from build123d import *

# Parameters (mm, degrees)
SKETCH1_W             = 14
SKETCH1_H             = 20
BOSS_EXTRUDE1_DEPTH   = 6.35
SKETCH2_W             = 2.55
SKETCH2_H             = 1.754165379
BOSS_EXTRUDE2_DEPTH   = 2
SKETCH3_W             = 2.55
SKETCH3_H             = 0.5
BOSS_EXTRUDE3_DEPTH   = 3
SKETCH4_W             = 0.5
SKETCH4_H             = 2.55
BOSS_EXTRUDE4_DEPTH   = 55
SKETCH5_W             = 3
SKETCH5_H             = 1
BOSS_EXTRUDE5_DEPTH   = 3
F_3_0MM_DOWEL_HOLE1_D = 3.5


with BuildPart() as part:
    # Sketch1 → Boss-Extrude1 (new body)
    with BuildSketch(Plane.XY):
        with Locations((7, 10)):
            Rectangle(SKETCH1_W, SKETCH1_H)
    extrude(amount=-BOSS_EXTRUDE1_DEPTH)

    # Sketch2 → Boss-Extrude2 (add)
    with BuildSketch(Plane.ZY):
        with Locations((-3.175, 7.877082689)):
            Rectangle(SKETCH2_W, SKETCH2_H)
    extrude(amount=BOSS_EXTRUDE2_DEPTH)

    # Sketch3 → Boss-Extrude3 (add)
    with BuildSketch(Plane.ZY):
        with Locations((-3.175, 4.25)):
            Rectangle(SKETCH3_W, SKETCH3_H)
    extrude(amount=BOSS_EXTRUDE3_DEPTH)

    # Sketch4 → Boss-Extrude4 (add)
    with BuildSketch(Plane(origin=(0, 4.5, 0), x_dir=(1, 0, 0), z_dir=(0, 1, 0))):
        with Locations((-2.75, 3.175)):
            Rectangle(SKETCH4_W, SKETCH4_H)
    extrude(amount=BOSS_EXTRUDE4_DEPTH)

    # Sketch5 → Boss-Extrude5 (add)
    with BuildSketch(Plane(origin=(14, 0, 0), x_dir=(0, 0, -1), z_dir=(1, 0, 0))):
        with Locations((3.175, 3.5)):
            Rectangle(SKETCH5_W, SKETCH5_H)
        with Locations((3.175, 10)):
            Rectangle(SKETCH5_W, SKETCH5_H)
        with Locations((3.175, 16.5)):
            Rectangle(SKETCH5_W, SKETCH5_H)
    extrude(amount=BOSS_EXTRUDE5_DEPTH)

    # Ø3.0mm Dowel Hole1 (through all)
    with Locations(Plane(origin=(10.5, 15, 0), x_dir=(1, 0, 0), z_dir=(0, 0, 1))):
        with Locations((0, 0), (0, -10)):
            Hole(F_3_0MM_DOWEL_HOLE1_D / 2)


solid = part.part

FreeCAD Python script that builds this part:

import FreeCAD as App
import Part
import Sketcher
Q = App.Units.Quantity


def add_polygon(sketch, points):
    """Adds a closed chain of lines whose ends are joined by coincident constraints."""
    first, n = sketch.GeometryCount, len(points)
    for a, b in zip(points, points[1:] + points[:1]):
        sketch.addGeometry(Part.LineSegment(App.Vector(*a, 0), App.Vector(*b, 0)), False)
    for i in range(n):
        sketch.addConstraint(Sketcher.Constraint("Coincident", first + i, 2, first + (i + 1) % n, 1))

doc = App.newDocument("Part")
body = doc.addObject("PartDesign::Body", "Body")

# Sketch on XY plane
sketch1 = doc.addObject("Sketcher::SketchObject", "Sketch")
body.addObject(sketch1)
sketch1.AttachmentSupport = (doc.XY_Plane, [""])
sketch1.MapMode = "FlatFace"
add_polygon(sketch1, [(0, 20), (0, 0), (14, 0), (14, 20)])  # lines 0-3
sketch1.addConstraint(Sketcher.Constraint("Vertical", 0))
sketch1.addConstraint(Sketcher.Constraint("Horizontal", 1))
sketch1.addConstraint(Sketcher.Constraint("Vertical", 2))
sketch1.addConstraint(Sketcher.Constraint("Horizontal", 3))
sketch1.addConstraint(Sketcher.Constraint("Coincident", 0, 2, -1, 1))
sketch1.addConstraint(Sketcher.Constraint("DistanceX", 1, 1, 1, 2, Q("14 mm")))
sketch1.addConstraint(Sketcher.Constraint("DistanceY", 0, 2, 0, 1, Q("20 mm")))
pad1 = doc.addObject("PartDesign::Pad", "Pad")
body.addObject(pad1)
pad1.Profile = sketch1
pad1.Length = 6.35
pad1.Reversed = True

# Sketch on YZ plane
sketch2 = doc.addObject("Sketcher::SketchObject", "Sketch001")
body.addObject(sketch2)
sketch2.AttachmentSupport = (doc.YZ_Plane, [""])
sketch2.MapMode = "FlatFace"
add_polygon(sketch2, [(8.8, -4.5), (7, -4.5), (7, -1.9), (8.8, -1.9)])  # lines 0-3
sketch2.addConstraint(Sketcher.Constraint("Horizontal", 0))
sketch2.addConstraint(Sketcher.Constraint("Vertical", 1))
sketch2.addConstraint(Sketcher.Constraint("Horizontal", 2))
sketch2.addConstraint(Sketcher.Constraint("Vertical", 3))
sketch2.addConstraint(Sketcher.Constraint("DistanceX", -1, 1, 0, 2, Q("7 mm")))
sketch2.addConstraint(Sketcher.Constraint("DistanceY", 1, 1, 1, 2, Q("2.55 mm")))
sketch2.addConstraint(Sketcher.Constraint("DistanceY", 1, 2, -1, 1, Q("1.9 mm")))
sketch2.addConstraint(Sketcher.Constraint("DistanceX", 0, 2, 0, 1, Q("1.754165 mm")))
pad2 = doc.addObject("PartDesign::Pad", "Pad001")
body.addObject(pad2)
pad2.Profile = sketch2
pad2.Length = 2
pad2.Reversed = True

# Sketch on YZ plane
sketch3 = doc.addObject("Sketcher::SketchObject", "Sketch002")
body.addObject(sketch3)
sketch3.AttachmentSupport = (doc.YZ_Plane, [""])
sketch3.MapMode = "FlatFace"
add_polygon(sketch3, [(4.5, -4.5), (4, -4.5), (4, -1.9), (4.5, -1.9)])  # lines 0-3
sketch3.addConstraint(Sketcher.Constraint("Horizontal", 0))
sketch3.addConstraint(Sketcher.Constraint("Vertical", 1))
sketch3.addConstraint(Sketcher.Constraint("Horizontal", 2))
sketch3.addConstraint(Sketcher.Constraint("Vertical", 3))
sketch3.addConstraint(Sketcher.Constraint("DistanceX", 0, 2, 0, 1, Q("0.5 mm")))
sketch3.addConstraint(Sketcher.Constraint("DistanceX", -1, 1, 0, 2, Q("4 mm")))
sketch3.addConstraint(Sketcher.Constraint("DistanceY", 1, 1, 1, 2, Q("2.55 mm")))
sketch3.addConstraint(Sketcher.Constraint("DistanceY", 1, 2, -1, 1, Q("1.9 mm")))
pad3 = doc.addObject("PartDesign::Pad", "Pad002")
body.addObject(pad3)
pad3.Profile = sketch3
pad3.Length = 3
pad3.Reversed = True

# Sketch on XZ plane
sketch4 = doc.addObject("Sketcher::SketchObject", "Sketch003")
body.addObject(sketch4)
sketch4.AttachmentSupport = (doc.XZ_Plane, [""])
sketch4.MapMode = "FlatFace"
sketch4.AttachmentOffset = App.Placement(App.Vector(0, 0, -4.5), App.Rotation())
add_polygon(sketch4, [(-3, -4.5), (-3, -1.9), (-2.5, -1.9), (-2.5, -4.5)])  # lines 0-3
sketch4.addConstraint(Sketcher.Constraint("Vertical", 0))
sketch4.addConstraint(Sketcher.Constraint("Horizontal", 1))
sketch4.addConstraint(Sketcher.Constraint("Vertical", 2))
sketch4.addConstraint(Sketcher.Constraint("Horizontal", 3))
sketch4.addConstraint(Sketcher.Constraint("DistanceX", 1, 1, 1, 2, Q("0.5 mm")))
sketch4.addConstraint(Sketcher.Constraint("DistanceX", 0, 2, -1, 1, Q("3 mm")))
sketch4.addConstraint(Sketcher.Constraint("DistanceY", 0, 1, 0, 2, Q("2.55 mm")))
sketch4.addConstraint(Sketcher.Constraint("DistanceY", 0, 2, -1, 1, Q("1.9 mm")))
pad4 = doc.addObject("PartDesign::Pad", "Pad003")
body.addObject(pad4)
pad4.Profile = sketch4
pad4.Length = 55
pad4.Reversed = True

# Sketch on YZ plane
sketch5 = doc.addObject("Sketcher::SketchObject", "Sketch004")
body.addObject(sketch5)
sketch5.AttachmentSupport = (doc.YZ_Plane, [""])
sketch5.MapMode = "FlatFace"
sketch5.AttachmentOffset = App.Placement(App.Vector(0, 0, 14), App.Rotation())
add_polygon(sketch5, [(4, -1.7), (3, -1.7), (3, -4.7), (4, -4.7)])  # lines 0-3
add_polygon(sketch5, [(10.5, -1.7), (9.5, -1.7), (9.5, -4.7), (10.5, -4.7)])  # lines 4-7
add_polygon(sketch5, [(17, -1.7), (16, -1.7), (16, -4.7), (17, -4.7)])  # lines 8-11
sketch5.addConstraint(Sketcher.Constraint("Horizontal", 0))
sketch5.addConstraint(Sketcher.Constraint("Vertical", 1))
sketch5.addConstraint(Sketcher.Constraint("Horizontal", 2))
sketch5.addConstraint(Sketcher.Constraint("Vertical", 3))
sketch5.addConstraint(Sketcher.Constraint("Horizontal", 4))
sketch5.addConstraint(Sketcher.Constraint("Vertical", 5))
sketch5.addConstraint(Sketcher.Constraint("Horizontal", 6))
sketch5.addConstraint(Sketcher.Constraint("Vertical", 7))
sketch5.addConstraint(Sketcher.Constraint("Horizontal", 8))
sketch5.addConstraint(Sketcher.Constraint("Vertical", 9))
sketch5.addConstraint(Sketcher.Constraint("Horizontal", 10))
sketch5.addConstraint(Sketcher.Constraint("Vertical", 11))
sketch5.addConstraint(Sketcher.Constraint("Horizontal", 3, 2, 4, 2))
sketch5.addConstraint(Sketcher.Constraint("Horizontal", 2, 2, 5, 2))
sketch5.addConstraint(Sketcher.Constraint("Horizontal", 7, 2, 8, 2))
sketch5.addConstraint(Sketcher.Constraint("Horizontal", 6, 2, 9, 2))
sketch5.addConstraint(Sketcher.Constraint("Equal", 2, 4))
sketch5.addConstraint(Sketcher.Constraint("Equal", 6, 8))
sketch5.addConstraint(Sketcher.Constraint("DistanceX", 0, 2, 0, 1, Q("1 mm")))
sketch5.addConstraint(Sketcher.Constraint("DistanceY", 1, 2, 1, 1, Q("3 mm")))
sketch5.addConstraint(Sketcher.Constraint("DistanceX", -1, 1, 0, 2, Q("3 mm")))
sketch5.addConstraint(Sketcher.Constraint("DistanceX", -1, 1, 8, 2, Q("16 mm")))
sketch5.addConstraint(Sketcher.Constraint("DistanceX", -1, 1, 4, 2, Q("9.5 mm")))
sketch5.addConstraint(Sketcher.Constraint("DistanceY", 0, 2, -1, 1, Q("1.675 mm")))
pad5 = doc.addObject("PartDesign::Pad", "Pad004")
body.addObject(pad5)
pad5.Profile = sketch5
pad5.Length = 3

# Sketch on XY plane
sketch6 = doc.addObject("Sketcher::SketchObject", "Sketch005")
body.addObject(sketch6)
sketch6.AttachmentSupport = (doc.XY_Plane, [""])
sketch6.MapMode = "FlatFace"
sketch6.addGeometry(Part.Circle(App.Vector(10.5, 15, 0), App.Vector(0, 0, 1), 1.8), False)
sketch6.addGeometry(Part.Circle(App.Vector(10.5, 5, 0), App.Vector(0, 0, 1), 1.8), False)
sketch6.addConstraint(Sketcher.Constraint("Equal", 0, 1))
sketch6.addConstraint(Sketcher.Constraint("Vertical", 0, 3, 1, 3))
sketch6.addConstraint(Sketcher.Constraint("Diameter", 0, Q("3.5 mm")))
sketch6.addConstraint(Sketcher.Constraint("DistanceY", -1, 1, 0, 3, Q("15 mm")))
sketch6.addConstraint(Sketcher.Constraint("DistanceY", -1, 1, 1, 3, Q("5 mm")))
sketch6.addConstraint(Sketcher.Constraint("DistanceX", -1, 1, 0, 3, Q("10.5 mm")))
doc.recompute()
hole = doc.addObject("PartDesign::Hole", "Hole")
body.addObject(hole)
hole.Profile = sketch6
hole.ThreadType = "None"
hole.Diameter = 3.5
hole.DepthType = "ThroughAll"

doc.recompute()
